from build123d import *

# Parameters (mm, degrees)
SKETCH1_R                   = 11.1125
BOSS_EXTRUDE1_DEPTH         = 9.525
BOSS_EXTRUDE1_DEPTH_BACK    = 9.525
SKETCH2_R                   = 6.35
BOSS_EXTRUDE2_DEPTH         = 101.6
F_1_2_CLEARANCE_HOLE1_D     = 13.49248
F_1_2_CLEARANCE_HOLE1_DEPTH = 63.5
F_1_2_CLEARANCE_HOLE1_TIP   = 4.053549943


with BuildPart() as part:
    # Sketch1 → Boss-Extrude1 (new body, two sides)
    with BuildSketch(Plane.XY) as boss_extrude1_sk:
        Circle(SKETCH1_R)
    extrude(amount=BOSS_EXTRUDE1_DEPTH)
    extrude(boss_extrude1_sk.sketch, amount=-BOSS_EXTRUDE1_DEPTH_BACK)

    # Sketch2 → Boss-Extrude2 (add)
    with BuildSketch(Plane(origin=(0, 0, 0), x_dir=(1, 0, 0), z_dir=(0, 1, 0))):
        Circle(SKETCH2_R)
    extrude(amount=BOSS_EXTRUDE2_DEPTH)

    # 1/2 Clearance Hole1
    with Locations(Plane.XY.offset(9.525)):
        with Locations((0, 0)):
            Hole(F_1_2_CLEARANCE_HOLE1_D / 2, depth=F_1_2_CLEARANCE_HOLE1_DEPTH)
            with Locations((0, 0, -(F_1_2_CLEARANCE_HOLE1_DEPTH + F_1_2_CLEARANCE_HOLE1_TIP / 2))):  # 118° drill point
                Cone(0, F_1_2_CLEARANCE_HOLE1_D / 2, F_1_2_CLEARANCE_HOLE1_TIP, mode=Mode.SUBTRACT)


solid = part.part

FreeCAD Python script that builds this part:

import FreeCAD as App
import Part
import Sketcher
Q = App.Units.Quantity

doc = App.newDocument("Part")
body = doc.addObject("PartDesign::Body", "Body")

# Sketch on XY plane
sketch1 = body.newObject("Sketcher::SketchObject", "Sketch")
sketch1.AttachmentSupport = (doc.getObject("XY_Plane"), [""])
sketch1.MapMode = "FlatFace"
sketch1.addGeometry(Part.Circle(App.Vector(0, 0, 0), App.Vector(0, 0, 1), 11.1125), False)
sketch1.addConstraint(Sketcher.Constraint("Coincident", 0, 3, -1, 1))
sketch1.addConstraint(Sketcher.Constraint("Diameter", 0, Q("0.875 in")))
pad1 = body.newObject("PartDesign::Pad", "Pad")
pad1.Profile = sketch1
pad1.Type = "TwoLengths"
pad1.Length = Q("0.375 in")
pad1.Length2 = Q("0.375 in")

# Sketch on XZ plane
sketch2 = body.newObject("Sketcher::SketchObject", "Sketch001")
sketch2.AttachmentSupport = (doc.getObject("XZ_Plane"), [""])
sketch2.MapMode = "FlatFace"
sketch2.addGeometry(Part.Circle(App.Vector(0, 0, 0), App.Vector(0, 0, 1), 6.35), False)
sketch2.addConstraint(Sketcher.Constraint("Coincident", 0, 3, -1, 1))
sketch2.addConstraint(Sketcher.Constraint("Diameter", 0, Q("0.5 in")))
pad2 = body.newObject("PartDesign::Pad", "Pad001")
pad2.Profile = sketch2
pad2.Length = Q("4 in")
pad2.Reversed = True

# Sketch on XY plane
sketch3 = body.newObject("Sketcher::SketchObject", "Sketch002")
sketch3.AttachmentSupport = (doc.getObject("XY_Plane"), [""])
sketch3.MapMode = "FlatFace"
sketch3.AttachmentOffset = App.Placement(App.Vector(0, 0, 0.375 * 25.4), App.Rotation())
sketch3.addGeometry(Part.Circle(App.Vector(0, 0, 0), App.Vector(0, 0, 1), 6.74624), False)
sketch3.addConstraint(Sketcher.Constraint("Coincident", 0, 3, -1, 1))
sketch3.addConstraint(Sketcher.Constraint("Diameter", 0, Q("0.5312 in")))
doc.recompute()
hole = body.newObject("PartDesign::Hole", "Hole")
hole.Profile = sketch3
hole.ThreadType = "None"
hole.Diameter = Q("0.5312 in")
hole.DepthType = "Dimension"
hole.Depth = Q("2.5 in")
hole.DrillPoint = "Angled"
hole.DrillPointAngle = 118

doc.recompute()
